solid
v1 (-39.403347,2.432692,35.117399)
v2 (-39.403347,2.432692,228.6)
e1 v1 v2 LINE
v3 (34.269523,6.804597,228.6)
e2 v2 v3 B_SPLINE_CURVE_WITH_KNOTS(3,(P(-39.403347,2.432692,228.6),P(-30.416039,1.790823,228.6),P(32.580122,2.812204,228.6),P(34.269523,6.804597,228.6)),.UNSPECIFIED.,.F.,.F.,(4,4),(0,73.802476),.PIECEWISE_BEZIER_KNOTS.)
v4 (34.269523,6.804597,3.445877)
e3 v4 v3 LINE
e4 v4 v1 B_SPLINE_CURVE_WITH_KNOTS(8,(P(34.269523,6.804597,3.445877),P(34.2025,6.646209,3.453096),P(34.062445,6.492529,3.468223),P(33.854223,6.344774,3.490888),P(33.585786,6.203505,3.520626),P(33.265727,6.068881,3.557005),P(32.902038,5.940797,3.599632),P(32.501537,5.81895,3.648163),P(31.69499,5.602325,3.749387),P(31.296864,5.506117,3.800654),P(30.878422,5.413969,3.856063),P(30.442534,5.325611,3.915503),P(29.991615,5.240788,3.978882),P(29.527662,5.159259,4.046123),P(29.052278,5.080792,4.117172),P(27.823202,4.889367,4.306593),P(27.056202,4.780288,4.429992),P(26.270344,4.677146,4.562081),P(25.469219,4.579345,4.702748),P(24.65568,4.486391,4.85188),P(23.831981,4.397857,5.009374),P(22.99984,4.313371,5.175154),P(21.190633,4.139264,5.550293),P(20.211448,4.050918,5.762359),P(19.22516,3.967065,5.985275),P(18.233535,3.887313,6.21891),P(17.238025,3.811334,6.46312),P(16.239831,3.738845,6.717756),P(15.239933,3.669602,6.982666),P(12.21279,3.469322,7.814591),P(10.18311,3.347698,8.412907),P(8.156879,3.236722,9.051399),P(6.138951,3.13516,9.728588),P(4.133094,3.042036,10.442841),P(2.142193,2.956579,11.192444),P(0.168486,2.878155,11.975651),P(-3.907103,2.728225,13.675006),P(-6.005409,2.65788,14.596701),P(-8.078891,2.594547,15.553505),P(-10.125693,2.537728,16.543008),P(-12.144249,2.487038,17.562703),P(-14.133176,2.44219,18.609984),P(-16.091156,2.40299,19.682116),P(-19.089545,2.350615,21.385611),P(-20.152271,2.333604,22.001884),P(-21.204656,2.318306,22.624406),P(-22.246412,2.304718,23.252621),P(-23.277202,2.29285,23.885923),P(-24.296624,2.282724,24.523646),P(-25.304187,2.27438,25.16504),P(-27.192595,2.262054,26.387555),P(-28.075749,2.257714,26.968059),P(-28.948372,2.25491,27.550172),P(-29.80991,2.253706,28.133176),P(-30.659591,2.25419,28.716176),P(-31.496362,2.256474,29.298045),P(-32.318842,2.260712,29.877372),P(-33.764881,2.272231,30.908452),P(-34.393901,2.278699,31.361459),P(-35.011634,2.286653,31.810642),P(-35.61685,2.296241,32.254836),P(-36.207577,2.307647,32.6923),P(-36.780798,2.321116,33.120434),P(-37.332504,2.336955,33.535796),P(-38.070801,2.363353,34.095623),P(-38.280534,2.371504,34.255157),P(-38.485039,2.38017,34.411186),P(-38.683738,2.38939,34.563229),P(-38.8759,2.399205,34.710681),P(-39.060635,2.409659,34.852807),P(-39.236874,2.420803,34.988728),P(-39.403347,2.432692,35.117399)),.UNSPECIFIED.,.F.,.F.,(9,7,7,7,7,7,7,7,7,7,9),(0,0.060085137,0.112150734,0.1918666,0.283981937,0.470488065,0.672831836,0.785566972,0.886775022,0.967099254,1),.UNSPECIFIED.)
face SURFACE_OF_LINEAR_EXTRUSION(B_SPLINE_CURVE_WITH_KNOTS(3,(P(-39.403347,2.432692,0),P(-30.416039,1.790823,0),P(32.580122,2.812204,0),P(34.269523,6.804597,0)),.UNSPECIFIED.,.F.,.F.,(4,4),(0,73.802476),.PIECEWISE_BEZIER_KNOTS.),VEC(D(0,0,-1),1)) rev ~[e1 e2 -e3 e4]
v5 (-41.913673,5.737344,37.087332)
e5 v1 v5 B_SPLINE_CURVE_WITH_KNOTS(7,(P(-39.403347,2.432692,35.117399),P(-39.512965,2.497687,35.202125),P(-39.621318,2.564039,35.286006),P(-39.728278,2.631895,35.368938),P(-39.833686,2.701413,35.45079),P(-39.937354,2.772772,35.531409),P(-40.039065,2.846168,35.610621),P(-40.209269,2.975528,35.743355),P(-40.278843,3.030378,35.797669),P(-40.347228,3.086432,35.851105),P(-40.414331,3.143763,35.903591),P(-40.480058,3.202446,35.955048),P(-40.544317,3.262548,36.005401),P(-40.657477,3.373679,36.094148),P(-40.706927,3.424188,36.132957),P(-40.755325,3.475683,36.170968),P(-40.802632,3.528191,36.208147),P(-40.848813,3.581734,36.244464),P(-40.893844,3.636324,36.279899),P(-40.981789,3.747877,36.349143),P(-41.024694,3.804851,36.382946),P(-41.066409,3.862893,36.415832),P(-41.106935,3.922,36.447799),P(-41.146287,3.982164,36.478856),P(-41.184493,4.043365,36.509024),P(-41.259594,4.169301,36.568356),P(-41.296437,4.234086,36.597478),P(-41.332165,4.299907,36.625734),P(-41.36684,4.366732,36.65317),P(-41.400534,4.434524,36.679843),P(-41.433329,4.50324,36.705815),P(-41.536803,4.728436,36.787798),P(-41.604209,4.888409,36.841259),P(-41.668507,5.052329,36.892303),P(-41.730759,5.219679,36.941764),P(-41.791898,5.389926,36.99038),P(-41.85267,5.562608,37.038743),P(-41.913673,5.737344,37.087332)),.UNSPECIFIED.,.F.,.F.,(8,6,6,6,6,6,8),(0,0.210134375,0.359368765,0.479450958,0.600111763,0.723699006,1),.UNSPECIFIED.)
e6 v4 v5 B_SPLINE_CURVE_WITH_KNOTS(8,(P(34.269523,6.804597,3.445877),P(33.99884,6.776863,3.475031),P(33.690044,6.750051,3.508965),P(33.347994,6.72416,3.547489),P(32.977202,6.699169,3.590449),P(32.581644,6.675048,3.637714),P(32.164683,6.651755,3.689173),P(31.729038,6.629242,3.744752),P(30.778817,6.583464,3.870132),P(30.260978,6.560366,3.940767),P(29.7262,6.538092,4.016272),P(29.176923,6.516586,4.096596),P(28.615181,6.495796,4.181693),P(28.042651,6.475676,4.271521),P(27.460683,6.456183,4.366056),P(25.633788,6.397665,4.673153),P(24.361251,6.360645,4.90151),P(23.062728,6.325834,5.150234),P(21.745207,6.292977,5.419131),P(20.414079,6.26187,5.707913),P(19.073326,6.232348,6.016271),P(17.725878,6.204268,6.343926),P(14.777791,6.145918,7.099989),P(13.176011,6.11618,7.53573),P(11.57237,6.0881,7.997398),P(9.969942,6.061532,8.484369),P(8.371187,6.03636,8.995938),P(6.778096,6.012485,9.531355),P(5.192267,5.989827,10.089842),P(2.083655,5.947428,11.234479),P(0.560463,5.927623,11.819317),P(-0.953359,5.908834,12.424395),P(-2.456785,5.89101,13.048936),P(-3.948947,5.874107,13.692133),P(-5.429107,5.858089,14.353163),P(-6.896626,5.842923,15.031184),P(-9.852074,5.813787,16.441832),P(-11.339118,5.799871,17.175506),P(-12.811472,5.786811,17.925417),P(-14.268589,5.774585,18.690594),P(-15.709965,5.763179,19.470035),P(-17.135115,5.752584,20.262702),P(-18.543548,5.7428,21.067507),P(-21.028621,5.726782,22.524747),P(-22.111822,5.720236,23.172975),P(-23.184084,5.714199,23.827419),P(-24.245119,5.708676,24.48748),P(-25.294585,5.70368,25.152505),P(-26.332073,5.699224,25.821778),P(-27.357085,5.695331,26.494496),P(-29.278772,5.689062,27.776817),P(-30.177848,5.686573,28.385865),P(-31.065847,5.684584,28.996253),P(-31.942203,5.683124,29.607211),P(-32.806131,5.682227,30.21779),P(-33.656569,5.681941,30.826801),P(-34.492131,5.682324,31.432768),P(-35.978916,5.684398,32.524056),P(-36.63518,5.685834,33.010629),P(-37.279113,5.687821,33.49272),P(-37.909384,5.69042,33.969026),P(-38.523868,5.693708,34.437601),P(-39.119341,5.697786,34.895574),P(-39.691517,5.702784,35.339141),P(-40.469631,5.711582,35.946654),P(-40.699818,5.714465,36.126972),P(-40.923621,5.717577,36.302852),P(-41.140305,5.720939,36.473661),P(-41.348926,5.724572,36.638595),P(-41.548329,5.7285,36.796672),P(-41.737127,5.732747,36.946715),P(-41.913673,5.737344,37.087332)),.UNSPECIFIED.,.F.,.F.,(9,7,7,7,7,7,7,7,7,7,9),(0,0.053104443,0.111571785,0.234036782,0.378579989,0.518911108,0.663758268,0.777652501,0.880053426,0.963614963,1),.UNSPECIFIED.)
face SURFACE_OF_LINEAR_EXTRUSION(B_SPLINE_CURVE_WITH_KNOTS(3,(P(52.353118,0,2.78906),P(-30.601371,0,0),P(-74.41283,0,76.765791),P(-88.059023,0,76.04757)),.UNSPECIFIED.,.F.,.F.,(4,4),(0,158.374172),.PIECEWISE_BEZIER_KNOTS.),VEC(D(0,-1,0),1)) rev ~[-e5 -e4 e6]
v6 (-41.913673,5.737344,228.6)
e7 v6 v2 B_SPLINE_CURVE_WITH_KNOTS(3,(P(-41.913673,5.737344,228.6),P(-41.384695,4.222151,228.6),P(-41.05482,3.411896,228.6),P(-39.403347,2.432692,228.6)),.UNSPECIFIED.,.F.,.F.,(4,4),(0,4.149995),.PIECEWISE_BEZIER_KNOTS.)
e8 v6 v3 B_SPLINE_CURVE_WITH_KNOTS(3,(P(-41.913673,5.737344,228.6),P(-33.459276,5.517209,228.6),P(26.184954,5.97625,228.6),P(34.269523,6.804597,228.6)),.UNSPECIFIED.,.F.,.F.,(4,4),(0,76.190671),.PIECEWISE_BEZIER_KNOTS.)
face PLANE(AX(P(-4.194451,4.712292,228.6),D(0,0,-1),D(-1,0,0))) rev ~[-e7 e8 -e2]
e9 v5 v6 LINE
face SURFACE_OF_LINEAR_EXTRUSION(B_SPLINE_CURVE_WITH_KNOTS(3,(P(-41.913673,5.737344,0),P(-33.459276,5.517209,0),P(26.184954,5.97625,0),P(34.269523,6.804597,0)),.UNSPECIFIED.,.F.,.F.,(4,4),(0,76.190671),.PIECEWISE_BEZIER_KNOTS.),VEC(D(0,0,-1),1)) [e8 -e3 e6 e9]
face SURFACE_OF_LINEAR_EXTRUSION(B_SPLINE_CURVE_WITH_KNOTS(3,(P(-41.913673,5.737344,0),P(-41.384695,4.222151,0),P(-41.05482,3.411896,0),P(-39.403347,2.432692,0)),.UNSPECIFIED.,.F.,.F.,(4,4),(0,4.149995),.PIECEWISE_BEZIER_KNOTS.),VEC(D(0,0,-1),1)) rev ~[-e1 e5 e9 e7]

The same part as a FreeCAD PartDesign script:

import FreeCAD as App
import Part
import Sketcher
Q = App.Units.Quantity

doc = App.newDocument("Part")
body = doc.addObject("PartDesign::Body", "Body")

sketch1 = body.newObject("Sketcher::SketchObject", "Sketch")
sketch1.AttachmentSupport = (doc.getObject("XY_Plane"), [""])
sketch1.MapMode = "FlatFace"
sketch1.addGeometry([
    Part.BSplineCurve([App.Vector(-41.913673, 5.737344, 0), App.Vector(-33.459276, 5.517209, 0), App.Vector(26.184954, 5.97625, 0), App.Vector(34.269523, 6.804597, 0)], [4, 4], [0, 76.190671], False, 3, [1, 1, 1, 1], False),
    Part.BSplineCurve([App.Vector(-41.913673, 5.737344, 0), App.Vector(-41.384695, 4.222151, 0), App.Vector(-41.05482, 3.411896, 0), App.Vector(-39.403347, 2.432692, 0)], [4, 4], [0, 4.149995], False, 3, [1, 1, 1, 1], False),
    Part.BSplineCurve([App.Vector(-39.403347, 2.432692, 0), App.Vector(-30.416039, 1.790823, 0), App.Vector(32.580122, 2.812204, 0), App.Vector(34.269523, 6.804597, 0)], [4, 4], [0, 73.802476], False, 3, [1, 1, 1, 1], False),
], False)
sketch1.addConstraint([
    Sketcher.Constraint("Block", 0),
    Sketcher.Constraint("Block", 1),
    Sketcher.Constraint("Block", 2),
])
pad1 = body.newObject("PartDesign::Pad", "Pad")
pad1.Profile = sketch1
pad1.Length = Q("9 in")

sketch2 = body.newObject("Sketcher::SketchObject", "Sketch001")
sketch2.AttachmentSupport = (doc.getObject("XZ_Plane"), [""])
sketch2.MapMode = "FlatFace"
sketch2.addGeometry([
    Part.BSplineCurve([App.Vector(-88.059023, 76.04757, 0), App.Vector(-94.862555, 45.078372, 0), App.Vector(-111.484175, -73.115654, 0), App.Vector(-6.149788, -18.574719, 0), App.Vector(52.353118, 2.78906, 0)], [4, 1, 4], [0, 98.755339, 241.463634], False, 3, [1, 1, 1, 1, 1], False),
    Part.BSplineCurve([App.Vector(52.353118, 2.78906, 0), App.Vector(-30.601371, 0, 0), App.Vector(-74.41283, 76.765791, 0), App.Vector(-88.059023, 76.04757, 0)], [4, 4], [0, 158.374172], False, 3, [1, 1, 1, 1], False),
], False)
sketch2.addConstraint([
    Sketcher.Constraint("Block", 0),
    Sketcher.Constraint("Block", 1),
])
pocket1 = body.newObject("PartDesign::Pocket", "Pocket")
pocket1.Profile = sketch2
pocket1.Length = Q("0.72 in")

doc.recompute()
